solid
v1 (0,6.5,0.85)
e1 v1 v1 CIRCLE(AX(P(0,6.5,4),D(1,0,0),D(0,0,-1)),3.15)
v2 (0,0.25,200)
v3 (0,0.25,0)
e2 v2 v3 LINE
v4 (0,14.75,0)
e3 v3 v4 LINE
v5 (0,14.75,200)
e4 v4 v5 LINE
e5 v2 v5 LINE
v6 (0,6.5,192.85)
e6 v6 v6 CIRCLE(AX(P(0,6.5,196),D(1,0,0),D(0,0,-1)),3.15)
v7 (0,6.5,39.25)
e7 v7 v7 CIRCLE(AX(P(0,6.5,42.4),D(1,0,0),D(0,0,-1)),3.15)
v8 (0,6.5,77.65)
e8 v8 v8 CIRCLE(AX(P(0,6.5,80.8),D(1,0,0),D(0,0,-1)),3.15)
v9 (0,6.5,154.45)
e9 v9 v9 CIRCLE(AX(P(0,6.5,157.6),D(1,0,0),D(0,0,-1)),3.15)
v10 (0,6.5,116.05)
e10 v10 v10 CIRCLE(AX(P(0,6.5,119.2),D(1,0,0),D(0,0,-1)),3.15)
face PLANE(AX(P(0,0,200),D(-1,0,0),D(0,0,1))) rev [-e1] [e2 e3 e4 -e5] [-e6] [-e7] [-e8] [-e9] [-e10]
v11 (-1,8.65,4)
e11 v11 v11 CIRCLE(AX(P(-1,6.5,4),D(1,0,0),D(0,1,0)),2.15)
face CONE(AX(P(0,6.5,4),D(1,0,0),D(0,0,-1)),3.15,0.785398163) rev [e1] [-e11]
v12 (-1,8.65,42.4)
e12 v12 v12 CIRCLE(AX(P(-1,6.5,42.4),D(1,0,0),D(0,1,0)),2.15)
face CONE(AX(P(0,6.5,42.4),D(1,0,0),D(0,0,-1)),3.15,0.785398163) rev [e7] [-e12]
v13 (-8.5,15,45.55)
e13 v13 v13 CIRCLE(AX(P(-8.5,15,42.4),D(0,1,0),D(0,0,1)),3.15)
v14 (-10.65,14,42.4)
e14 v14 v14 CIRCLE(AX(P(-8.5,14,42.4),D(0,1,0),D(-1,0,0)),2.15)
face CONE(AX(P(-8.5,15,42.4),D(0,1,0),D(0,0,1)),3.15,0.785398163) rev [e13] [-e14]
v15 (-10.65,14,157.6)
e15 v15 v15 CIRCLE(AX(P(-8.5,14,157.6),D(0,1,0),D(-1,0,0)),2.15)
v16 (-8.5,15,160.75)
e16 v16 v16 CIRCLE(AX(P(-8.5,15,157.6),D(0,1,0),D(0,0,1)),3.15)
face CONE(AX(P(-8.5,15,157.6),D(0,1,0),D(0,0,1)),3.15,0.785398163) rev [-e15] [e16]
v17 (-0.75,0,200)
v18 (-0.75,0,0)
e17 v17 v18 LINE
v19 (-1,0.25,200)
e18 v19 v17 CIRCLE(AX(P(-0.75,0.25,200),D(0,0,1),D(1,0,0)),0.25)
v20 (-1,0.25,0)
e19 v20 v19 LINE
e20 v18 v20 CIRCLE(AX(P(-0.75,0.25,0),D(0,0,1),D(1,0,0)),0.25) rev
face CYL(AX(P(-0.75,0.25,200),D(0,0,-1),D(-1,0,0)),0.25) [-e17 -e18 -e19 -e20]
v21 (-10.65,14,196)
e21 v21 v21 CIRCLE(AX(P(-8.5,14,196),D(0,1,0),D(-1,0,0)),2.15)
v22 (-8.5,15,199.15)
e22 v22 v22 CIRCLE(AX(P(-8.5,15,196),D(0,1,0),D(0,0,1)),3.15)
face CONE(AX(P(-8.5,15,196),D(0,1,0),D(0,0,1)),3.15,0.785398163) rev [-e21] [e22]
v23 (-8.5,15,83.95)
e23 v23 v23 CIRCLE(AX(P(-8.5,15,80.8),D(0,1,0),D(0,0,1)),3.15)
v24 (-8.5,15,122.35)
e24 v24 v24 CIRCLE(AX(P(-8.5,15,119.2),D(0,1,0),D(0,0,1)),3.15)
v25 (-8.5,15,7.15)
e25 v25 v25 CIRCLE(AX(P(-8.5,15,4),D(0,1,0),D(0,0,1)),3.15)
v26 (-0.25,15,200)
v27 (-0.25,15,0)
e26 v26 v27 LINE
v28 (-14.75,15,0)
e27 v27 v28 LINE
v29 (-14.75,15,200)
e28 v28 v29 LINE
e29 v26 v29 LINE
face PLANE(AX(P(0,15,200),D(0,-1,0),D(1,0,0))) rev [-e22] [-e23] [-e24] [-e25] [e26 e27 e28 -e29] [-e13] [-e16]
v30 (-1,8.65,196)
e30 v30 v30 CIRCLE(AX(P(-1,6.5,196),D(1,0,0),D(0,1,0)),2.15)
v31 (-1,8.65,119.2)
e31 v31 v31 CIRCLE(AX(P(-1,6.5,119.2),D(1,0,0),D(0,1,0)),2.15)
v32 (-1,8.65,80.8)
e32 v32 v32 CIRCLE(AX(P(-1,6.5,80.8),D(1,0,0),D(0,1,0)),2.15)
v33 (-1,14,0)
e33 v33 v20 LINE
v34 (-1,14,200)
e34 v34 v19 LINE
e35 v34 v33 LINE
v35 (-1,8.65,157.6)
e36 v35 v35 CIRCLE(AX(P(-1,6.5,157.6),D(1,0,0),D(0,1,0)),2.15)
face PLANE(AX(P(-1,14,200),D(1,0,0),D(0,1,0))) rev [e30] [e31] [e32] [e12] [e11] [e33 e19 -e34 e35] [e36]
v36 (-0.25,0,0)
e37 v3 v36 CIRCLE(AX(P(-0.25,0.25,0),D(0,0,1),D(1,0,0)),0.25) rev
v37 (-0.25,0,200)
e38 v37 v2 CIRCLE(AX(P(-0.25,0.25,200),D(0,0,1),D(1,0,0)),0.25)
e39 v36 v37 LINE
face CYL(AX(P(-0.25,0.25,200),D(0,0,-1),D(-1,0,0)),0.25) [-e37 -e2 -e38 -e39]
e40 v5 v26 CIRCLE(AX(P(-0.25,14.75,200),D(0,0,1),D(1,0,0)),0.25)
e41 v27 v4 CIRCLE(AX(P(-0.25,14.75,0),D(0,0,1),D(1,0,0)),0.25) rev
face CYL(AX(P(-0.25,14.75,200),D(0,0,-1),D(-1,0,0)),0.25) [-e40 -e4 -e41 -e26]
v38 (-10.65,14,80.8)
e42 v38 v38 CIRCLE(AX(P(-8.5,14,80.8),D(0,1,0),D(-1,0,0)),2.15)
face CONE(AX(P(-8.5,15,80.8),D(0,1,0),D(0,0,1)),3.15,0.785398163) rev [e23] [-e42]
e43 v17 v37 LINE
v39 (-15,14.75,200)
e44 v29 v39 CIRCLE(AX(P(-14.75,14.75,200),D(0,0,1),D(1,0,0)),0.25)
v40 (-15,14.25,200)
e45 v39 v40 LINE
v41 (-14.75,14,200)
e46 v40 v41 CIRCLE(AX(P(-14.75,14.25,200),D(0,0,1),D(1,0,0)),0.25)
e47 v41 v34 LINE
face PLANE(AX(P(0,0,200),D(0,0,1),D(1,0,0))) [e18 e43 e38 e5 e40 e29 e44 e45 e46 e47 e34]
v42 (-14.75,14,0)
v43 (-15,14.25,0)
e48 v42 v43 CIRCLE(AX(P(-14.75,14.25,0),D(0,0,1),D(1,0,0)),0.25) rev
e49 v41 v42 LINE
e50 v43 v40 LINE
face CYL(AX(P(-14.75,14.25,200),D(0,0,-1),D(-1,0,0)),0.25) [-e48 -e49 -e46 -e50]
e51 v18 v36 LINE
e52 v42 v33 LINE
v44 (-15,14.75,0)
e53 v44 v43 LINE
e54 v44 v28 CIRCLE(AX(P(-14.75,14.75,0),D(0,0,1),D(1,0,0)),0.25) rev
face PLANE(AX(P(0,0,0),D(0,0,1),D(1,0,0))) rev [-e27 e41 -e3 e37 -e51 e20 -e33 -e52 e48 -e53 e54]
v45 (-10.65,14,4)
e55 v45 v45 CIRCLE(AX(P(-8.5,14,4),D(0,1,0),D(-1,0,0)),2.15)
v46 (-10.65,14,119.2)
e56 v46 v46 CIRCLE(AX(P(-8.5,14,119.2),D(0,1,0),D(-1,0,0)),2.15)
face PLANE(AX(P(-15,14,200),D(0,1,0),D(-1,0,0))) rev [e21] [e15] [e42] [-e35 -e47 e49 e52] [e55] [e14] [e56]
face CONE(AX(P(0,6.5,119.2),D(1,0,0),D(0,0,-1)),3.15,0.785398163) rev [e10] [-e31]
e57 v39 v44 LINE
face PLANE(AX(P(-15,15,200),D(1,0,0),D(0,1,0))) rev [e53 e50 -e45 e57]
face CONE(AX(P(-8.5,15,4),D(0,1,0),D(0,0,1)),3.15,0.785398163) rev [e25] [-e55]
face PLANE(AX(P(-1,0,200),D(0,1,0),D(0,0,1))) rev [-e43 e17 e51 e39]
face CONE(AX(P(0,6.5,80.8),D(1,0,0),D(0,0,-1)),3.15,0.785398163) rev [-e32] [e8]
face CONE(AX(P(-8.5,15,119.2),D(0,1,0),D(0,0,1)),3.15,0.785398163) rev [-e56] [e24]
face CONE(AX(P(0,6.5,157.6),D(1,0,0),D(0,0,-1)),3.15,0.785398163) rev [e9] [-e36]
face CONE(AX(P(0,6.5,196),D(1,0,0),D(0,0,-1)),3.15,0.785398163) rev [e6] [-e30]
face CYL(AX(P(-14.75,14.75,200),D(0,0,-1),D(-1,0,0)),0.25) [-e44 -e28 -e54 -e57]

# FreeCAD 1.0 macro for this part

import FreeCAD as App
import Part
import Sketcher
Q = App.Units.Quantity


def edges_at(feature, points):
    """Names of the edges that pass closest to the given points."""
    edges = feature.Shape.Edges
    near = lambda p: min(range(len(edges)), key=lambda i: edges[i].distToShape(Part.Vertex(*p))[0])
    return sorted({f"Edge{near(p) + 1}" for p in points})


def add_polygon(sketch, points):
    """Adds a closed chain of lines whose ends are joined by coincident constraints."""
    first, n = sketch.GeometryCount, len(points)
    for a, b in zip(points, points[1:] + points[:1]):
        sketch.addGeometry(Part.LineSegment(App.Vector(*a, 0), App.Vector(*b, 0)), False)
    for i in range(n):
        sketch.addConstraint(Sketcher.Constraint("Coincident", first + i, 2, first + (i + 1) % n, 1))

doc = App.newDocument("Part")
body = doc.addObject("PartDesign::Body", "Body")

sketch1 = body.newObject("Sketcher::SketchObject", "Sketch")
sketch1.AttachmentSupport = (doc.getObject("XY_Plane"), [""])
sketch1.MapMode = "FlatFace"
add_polygon(sketch1, [(0, 0), (0, 15), (-15, 15), (-15, 14), (-1, 14), (-1, 0)])
sketch1.addConstraint([
    Sketcher.Constraint("Vertical", 0),
    Sketcher.Constraint("Horizontal", 1),
    Sketcher.Constraint("Vertical", 2),
    Sketcher.Constraint("Horizontal", 3),
    Sketcher.Constraint("Vertical", 4),
    Sketcher.Constraint("Horizontal", 5),
    Sketcher.Constraint("Coincident", 5, 2, -1, 1),
    Sketcher.Constraint("Equal", 1, 0),
    Sketcher.Constraint("Equal", 5, 2),
    Sketcher.Constraint("DistanceX", 1, 2, 1, 1, 15.0),
    Sketcher.Constraint("DistanceX", 3, 1, 3, 2, 14.0),
])
pad1 = body.newObject("PartDesign::Pad", "Pad")
pad1.Profile = sketch1
pad1.Length = 200
doc.recompute()

fillet = body.newObject("PartDesign::Fillet", "Fillet")
fillet.Base = (pad1, edges_at(pad1, [
    (-15, 14, 100),
    (-15, 15, 100),
    (0, 15, 100),
    (0, 0, 100),
    (-1, 0, 100),
]))
fillet.Radius = 0.25

sketch2 = body.newObject("Sketcher::SketchObject", "Sketch001")
sketch2.AttachmentSupport = (doc.getObject("XZ_Plane"), [""])
sketch2.MapMode = "FlatFace"
sketch2.AttachmentOffset = App.Placement(App.Vector(0, 0, -6.5), App.Rotation())
add_polygon(sketch2, [(-1.001, 4), (0, 4), (0, 0.85), (-1.45, 2.3), (-1.001, 2.3)])
sketch2.addGeometry(Part.LineSegment(App.Vector(0, 4, 0), App.Vector(-1.45, 4, 0)), True)
sketch2.addConstraint([
    Sketcher.Constraint("Horizontal", 0),
    Sketcher.Constraint("Vertical", 1),
    Sketcher.Constraint("Horizontal", 3),
    Sketcher.Constraint("Vertical", 4),
    Sketcher.Constraint("Horizontal", 5),
    Sketcher.Constraint("Coincident", 5, 1, 0, 2),
    Sketcher.Constraint("PointOnObject", 0, 2, -2),
    Sketcher.Constraint("Vertical", 2, 2, 5, 2),
    Sketcher.Constraint("Angle", 2, Q("135 deg")),
    Sketcher.Constraint("DistanceY", 4, 1, 4, 2, 1.7),
    Sketcher.Constraint("DistanceY", -1, 1, 0, 2, 4.0),
    Sketcher.Constraint("DistanceX", 5, 2, 5, 1, 1.45),
    Sketcher.Constraint("DistanceX", 0, 1, 0, 2, 1.001),
])
groove = body.newObject("PartDesign::Groove", "Groove")
groove.Profile = sketch2
groove.ReferenceAxis = (sketch2, ["Axis0"])
groove.Angle = 360
doc.recompute()

linearpattern = body.newObject("PartDesign::LinearPattern", "LinearPattern")
linearpattern.Originals = [groove]
linearpattern.Direction = (doc.getObject("Z_Axis"), [""])
linearpattern.Mode = "offset"
linearpattern.Offset = 38.4
linearpattern.Occurrences = 6
body.Tip = linearpattern

sketch3 = body.newObject("Sketcher::SketchObject", "Sketch002")
sketch3.AttachmentSupport = (doc.getObject("YZ_Plane"), [""])
sketch3.MapMode = "FlatFace"
sketch3.AttachmentOffset = App.Placement(App.Vector(0, 0, -8.5), App.Rotation())
add_polygon(sketch3, [(13.999, 4), (15, 4), (15, 7.15), (13.55, 5.7), (13.999, 5.7)])
sketch3.addGeometry(Part.LineSegment(App.Vector(15, 4, 0), App.Vector(13.55, 4, 0)), True)
sketch3.addConstraint([
    Sketcher.Constraint("Horizontal", 0),
    Sketcher.Constraint("Vertical", 1),
    Sketcher.Constraint("Horizontal", 3),
    Sketcher.Constraint("Vertical", 4),
    Sketcher.Constraint("Horizontal", 5),
    Sketcher.Constraint("Coincident", 5, 1, 0, 2),
    Sketcher.Constraint("Vertical", 2, 2, 5, 2),
    Sketcher.Constraint("Angle", 2, Q("-135 deg")),
    Sketcher.Constraint("DistanceY", 4, 2, 4, 1, 1.7),
    Sketcher.Constraint("DistanceX", -1, 1, 0, 2, 15.0),
    Sketcher.Constraint("DistanceY", -1, 1, 0, 2, 4.0),
    Sketcher.Constraint("DistanceX", 5, 2, 5, 1, 1.45),
    Sketcher.Constraint("DistanceX", 0, 1, 0, 2, 1.001),
])
groove2 = body.newObject("PartDesign::Groove", "Groove001")
groove2.Profile = sketch3
groove2.ReferenceAxis = (sketch3, ["Axis0"])
groove2.Angle = 360
doc.recompute()

linearpattern2 = body.newObject("PartDesign::LinearPattern", "LinearPattern001")
linearpattern2.Originals = [groove2]
linearpattern2.Direction = (doc.getObject("Z_Axis"), [""])
linearpattern2.Mode = "offset"
linearpattern2.Offset = 38.4
linearpattern2.Occurrences = 6
body.Tip = linearpattern2

doc.recompute()
